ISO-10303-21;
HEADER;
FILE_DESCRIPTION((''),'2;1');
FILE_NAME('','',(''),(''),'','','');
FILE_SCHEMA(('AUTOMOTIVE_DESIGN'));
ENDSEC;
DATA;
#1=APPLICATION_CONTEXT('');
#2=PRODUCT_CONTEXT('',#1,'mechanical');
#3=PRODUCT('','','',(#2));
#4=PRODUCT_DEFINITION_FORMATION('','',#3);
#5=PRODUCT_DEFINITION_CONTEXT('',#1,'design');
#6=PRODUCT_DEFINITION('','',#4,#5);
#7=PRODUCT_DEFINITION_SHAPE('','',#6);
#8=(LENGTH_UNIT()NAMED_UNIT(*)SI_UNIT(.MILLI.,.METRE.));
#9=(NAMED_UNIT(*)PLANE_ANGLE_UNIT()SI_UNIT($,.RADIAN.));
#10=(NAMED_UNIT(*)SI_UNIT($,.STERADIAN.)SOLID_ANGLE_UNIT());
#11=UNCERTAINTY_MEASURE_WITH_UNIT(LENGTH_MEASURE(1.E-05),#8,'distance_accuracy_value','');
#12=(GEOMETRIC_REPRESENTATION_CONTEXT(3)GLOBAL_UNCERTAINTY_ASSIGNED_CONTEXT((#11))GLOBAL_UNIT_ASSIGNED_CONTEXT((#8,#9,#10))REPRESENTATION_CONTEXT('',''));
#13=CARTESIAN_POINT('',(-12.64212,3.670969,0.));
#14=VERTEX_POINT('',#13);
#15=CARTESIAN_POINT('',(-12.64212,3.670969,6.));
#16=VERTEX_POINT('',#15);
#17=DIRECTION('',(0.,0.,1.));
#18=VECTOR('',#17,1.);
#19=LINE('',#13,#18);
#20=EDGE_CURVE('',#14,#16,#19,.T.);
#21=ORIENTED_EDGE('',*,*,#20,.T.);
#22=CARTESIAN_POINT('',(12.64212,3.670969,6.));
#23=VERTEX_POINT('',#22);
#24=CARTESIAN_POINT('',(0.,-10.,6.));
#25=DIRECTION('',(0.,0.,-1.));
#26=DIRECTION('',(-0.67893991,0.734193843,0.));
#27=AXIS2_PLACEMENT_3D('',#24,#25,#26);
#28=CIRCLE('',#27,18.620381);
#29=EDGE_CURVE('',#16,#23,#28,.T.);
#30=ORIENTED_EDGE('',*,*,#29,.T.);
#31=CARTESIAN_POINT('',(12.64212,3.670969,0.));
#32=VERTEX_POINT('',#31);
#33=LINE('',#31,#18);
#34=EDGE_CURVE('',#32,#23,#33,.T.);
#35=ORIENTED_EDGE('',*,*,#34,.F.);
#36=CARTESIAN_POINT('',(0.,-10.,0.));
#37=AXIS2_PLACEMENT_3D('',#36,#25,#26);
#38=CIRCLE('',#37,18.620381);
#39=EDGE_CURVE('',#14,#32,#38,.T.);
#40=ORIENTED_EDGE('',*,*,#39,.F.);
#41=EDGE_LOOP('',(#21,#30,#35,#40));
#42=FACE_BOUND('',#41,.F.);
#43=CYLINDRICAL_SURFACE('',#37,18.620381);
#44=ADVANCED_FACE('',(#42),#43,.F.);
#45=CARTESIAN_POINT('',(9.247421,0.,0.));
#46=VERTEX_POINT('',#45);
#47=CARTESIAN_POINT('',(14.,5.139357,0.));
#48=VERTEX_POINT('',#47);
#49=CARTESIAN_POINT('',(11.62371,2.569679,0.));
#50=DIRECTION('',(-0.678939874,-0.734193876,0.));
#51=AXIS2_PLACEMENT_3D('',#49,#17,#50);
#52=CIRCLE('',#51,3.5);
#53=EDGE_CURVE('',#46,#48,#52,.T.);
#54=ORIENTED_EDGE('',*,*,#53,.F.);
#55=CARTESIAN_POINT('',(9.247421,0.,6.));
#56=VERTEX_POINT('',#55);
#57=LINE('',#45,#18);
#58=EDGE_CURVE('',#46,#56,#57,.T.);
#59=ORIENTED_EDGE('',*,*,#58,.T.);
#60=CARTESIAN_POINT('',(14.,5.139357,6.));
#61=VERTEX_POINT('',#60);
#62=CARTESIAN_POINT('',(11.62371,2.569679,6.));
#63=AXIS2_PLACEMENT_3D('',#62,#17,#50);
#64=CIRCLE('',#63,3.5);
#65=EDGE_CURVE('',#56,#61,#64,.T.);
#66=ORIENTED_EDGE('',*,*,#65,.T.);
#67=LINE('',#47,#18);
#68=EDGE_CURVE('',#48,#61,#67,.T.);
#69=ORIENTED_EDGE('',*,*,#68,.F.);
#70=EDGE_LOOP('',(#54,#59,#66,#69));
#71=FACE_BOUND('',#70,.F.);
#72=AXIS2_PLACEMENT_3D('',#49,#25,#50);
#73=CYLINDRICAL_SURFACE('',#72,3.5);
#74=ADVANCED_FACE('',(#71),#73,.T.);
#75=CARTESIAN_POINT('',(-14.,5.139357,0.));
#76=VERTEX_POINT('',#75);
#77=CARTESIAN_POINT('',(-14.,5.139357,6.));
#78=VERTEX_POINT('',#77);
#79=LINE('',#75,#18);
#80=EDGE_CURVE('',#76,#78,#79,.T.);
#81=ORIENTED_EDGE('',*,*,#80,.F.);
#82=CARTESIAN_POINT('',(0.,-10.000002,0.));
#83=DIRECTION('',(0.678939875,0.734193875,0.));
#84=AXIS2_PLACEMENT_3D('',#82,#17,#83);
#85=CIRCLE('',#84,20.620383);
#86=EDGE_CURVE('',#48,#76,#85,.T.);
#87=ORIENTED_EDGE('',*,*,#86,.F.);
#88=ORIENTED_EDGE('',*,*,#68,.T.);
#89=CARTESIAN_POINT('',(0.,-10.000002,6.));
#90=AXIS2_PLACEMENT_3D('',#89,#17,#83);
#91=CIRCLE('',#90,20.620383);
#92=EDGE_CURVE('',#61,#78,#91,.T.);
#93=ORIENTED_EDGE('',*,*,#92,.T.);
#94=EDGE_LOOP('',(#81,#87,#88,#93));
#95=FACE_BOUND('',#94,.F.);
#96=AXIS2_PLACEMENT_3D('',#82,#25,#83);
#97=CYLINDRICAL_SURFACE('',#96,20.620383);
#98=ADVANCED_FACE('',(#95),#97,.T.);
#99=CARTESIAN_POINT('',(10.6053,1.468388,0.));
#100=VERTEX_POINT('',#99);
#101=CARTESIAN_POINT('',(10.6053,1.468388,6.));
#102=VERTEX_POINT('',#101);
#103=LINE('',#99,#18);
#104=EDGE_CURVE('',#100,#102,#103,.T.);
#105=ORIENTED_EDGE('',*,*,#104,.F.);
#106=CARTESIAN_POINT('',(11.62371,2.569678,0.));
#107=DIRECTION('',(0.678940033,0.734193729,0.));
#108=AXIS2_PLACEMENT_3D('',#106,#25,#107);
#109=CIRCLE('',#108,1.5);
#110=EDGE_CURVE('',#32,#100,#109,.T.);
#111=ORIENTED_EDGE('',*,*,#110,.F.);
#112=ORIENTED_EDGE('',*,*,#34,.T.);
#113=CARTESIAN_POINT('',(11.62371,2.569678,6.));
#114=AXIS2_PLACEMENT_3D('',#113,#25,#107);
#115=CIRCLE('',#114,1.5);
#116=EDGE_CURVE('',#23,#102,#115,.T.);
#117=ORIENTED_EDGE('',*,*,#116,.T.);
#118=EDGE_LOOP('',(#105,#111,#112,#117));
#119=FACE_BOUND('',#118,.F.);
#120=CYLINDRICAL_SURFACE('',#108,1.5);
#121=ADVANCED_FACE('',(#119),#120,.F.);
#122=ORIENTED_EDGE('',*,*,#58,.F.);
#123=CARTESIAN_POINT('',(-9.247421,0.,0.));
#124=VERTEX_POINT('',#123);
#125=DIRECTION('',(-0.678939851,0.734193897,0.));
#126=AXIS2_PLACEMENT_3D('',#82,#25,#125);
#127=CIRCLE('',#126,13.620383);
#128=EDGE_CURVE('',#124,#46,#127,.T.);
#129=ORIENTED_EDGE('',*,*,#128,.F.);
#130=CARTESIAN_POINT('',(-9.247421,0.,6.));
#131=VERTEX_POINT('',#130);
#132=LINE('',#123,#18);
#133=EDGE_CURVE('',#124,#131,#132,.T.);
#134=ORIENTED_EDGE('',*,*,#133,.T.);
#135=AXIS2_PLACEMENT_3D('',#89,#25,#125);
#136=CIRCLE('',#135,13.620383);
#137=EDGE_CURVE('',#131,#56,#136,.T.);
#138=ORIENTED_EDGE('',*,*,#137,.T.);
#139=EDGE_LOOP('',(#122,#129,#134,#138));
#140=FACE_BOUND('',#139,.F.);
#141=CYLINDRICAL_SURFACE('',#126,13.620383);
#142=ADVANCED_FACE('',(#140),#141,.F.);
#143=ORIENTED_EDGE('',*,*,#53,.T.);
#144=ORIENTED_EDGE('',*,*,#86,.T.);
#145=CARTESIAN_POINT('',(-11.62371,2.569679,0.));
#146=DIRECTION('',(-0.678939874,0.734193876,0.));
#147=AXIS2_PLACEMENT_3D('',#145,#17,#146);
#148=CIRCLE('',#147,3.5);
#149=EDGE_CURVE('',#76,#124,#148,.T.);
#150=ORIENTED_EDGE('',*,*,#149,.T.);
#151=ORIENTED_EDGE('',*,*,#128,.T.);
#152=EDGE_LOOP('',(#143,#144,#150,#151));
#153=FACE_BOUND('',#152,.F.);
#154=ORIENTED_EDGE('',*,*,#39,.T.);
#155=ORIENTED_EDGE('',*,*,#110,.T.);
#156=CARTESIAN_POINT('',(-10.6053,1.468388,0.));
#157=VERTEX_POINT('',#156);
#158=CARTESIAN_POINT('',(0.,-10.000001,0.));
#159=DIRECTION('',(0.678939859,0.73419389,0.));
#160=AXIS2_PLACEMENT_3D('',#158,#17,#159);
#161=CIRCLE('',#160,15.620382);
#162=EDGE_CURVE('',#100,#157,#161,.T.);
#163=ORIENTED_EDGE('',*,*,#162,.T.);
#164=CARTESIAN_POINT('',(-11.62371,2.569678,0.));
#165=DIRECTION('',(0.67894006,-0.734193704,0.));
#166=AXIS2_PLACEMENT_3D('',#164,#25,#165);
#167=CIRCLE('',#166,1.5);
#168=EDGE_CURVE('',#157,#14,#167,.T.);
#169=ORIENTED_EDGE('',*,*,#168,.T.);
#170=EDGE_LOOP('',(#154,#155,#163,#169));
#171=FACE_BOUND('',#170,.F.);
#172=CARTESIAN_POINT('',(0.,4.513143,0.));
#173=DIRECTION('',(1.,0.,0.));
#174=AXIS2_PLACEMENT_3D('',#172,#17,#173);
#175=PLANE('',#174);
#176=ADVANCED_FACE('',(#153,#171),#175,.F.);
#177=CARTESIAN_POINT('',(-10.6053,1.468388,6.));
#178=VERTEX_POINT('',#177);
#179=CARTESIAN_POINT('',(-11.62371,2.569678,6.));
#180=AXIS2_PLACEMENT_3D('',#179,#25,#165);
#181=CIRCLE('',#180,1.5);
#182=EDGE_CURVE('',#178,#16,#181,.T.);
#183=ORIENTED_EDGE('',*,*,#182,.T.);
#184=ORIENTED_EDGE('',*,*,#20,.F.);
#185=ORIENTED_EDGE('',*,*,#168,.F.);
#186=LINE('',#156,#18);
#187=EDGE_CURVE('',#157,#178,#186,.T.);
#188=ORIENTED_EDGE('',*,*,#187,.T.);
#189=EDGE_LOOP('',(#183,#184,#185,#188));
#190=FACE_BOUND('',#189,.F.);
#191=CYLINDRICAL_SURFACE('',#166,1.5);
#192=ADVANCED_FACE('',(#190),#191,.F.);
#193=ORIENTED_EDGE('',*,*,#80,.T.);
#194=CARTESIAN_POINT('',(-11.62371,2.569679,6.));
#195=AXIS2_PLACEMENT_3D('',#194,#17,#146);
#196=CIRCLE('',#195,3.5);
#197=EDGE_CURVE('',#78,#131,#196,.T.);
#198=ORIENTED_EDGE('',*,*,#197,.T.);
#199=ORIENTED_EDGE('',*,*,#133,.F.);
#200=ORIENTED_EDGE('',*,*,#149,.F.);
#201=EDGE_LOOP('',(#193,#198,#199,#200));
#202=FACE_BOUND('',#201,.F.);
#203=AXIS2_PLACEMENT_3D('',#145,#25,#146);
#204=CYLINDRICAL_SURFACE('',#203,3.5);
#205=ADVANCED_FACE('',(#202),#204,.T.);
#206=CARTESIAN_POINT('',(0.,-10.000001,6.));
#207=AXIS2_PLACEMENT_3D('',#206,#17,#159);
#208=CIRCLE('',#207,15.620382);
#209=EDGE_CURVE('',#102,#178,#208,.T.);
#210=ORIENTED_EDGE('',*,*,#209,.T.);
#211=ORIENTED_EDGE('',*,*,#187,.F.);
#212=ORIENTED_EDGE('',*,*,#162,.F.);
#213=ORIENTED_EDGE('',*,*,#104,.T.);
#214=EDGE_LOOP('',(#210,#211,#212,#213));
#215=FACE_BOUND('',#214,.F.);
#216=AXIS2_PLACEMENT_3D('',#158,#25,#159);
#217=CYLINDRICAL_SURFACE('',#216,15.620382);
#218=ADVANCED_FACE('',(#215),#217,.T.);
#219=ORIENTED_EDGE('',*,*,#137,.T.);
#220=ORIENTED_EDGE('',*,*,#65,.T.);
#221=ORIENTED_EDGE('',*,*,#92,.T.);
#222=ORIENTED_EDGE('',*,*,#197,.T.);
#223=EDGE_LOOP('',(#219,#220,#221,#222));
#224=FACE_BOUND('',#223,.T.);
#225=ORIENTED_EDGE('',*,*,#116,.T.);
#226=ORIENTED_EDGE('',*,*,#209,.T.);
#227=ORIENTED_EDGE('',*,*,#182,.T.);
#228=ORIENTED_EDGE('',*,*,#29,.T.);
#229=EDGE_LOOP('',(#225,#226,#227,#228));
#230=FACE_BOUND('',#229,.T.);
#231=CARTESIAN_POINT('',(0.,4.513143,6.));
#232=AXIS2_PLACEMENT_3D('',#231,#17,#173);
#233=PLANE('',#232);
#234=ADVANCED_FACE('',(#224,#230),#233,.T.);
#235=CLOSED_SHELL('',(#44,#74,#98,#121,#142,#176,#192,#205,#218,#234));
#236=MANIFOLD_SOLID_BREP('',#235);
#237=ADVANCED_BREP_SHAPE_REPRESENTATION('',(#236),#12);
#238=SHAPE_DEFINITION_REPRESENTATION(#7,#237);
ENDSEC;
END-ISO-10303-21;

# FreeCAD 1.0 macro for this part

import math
import FreeCAD as App
import Part
import Sketcher

V = App.Vector
Q = App.Units.Quantity

doc = App.newDocument("Part")
body = doc.addObject("PartDesign::Body", "Body")

# Sketch on XY plane
sketch1 = body.newObject("Sketcher::SketchObject", "Sketch")
sketch1.AttachmentSupport = (doc.getObject("XY_Plane"), [""])
sketch1.MapMode = "FlatFace"
sketch1.addGeometry([
    Part.ArcOfCircle(Part.Circle(V(0, -10, 0), V(0, 0, 1), 13.6), math.radians(47), math.radians(133)),  # 0
    Part.ArcOfCircle(Part.Circle(V(11.6, 2.6, 0), V(0, 0, 1), 3.5), math.radians(-133), math.radians(47)),  # 1
    Part.ArcOfCircle(Part.Circle(V(0, -10, 0), V(0, 0, 1), 20.6), math.radians(47), math.radians(133)),  # 2
    Part.ArcOfCircle(Part.Circle(V(-11.6, 2.6, 0), V(0, 0, 1), 3.5), math.radians(133), math.radians(313)),  # 3
    Part.ArcOfCircle(Part.Circle(V(-11.6, 2.6, 0), V(0, 0, 1), 1.5), math.radians(133), math.radians(313)),  # 4
    Part.ArcOfCircle(Part.Circle(V(0, -10, 0), V(0, 0, 1), 18.6), math.radians(47), math.radians(133)),  # 5
    Part.ArcOfCircle(Part.Circle(V(11.6, 2.6, 0), V(0, 0, 1), 1.5), math.radians(-133), math.radians(47)),  # 6
    Part.ArcOfCircle(Part.Circle(V(0, -10, 0), V(0, 0, 1), 15.6), math.radians(47), math.radians(133)),  # 7
], False)
sketch1.addConstraint([
    Sketcher.Constraint("Tangent", 0, 1, 1, 1),
    Sketcher.Constraint("Tangent", 1, 2, 2, 1),
    Sketcher.Constraint("Tangent", 2, 2, 3, 1),
    Sketcher.Constraint("Tangent", 3, 2, 0, 2),
    Sketcher.Constraint("Tangent", 4, 1, 5, 2),
    Sketcher.Constraint("Tangent", 5, 1, 6, 2),
    Sketcher.Constraint("Tangent", 6, 1, 7, 1),
    Sketcher.Constraint("Tangent", 7, 2, 4, 2),
    Sketcher.Constraint("Coincident", 2, 3, 0, 3),
    Sketcher.Constraint("Coincident", 4, 3, 3, 3),
    Sketcher.Constraint("Coincident", 5, 3, 0, 3),
    Sketcher.Constraint("Coincident", 6, 3, 1, 3),
    Sketcher.Constraint("Symmetric", 0, 1, 3, 2, -1, 1),
    Sketcher.Constraint("PointOnObject", 0, 3, -2),
    Sketcher.Constraint("Radius", 1, Q("3.5 mm")),
    Sketcher.Constraint("Radius", 4, Q("1.5 mm")),
    Sketcher.Constraint("DistanceY", 2, 3, -1, 1, Q("10.000002 mm")),
    Sketcher.Constraint("DistanceY", 7, 3, -1, 1, Q("10.000001 mm")),
    Sketcher.Constraint("DistanceX", -1, 1, 1, 2, Q("14 mm")),
])
pad1 = body.newObject("PartDesign::Pad", "Pad")
pad1.Profile = sketch1
pad1.Length = 6

doc.recompute()
